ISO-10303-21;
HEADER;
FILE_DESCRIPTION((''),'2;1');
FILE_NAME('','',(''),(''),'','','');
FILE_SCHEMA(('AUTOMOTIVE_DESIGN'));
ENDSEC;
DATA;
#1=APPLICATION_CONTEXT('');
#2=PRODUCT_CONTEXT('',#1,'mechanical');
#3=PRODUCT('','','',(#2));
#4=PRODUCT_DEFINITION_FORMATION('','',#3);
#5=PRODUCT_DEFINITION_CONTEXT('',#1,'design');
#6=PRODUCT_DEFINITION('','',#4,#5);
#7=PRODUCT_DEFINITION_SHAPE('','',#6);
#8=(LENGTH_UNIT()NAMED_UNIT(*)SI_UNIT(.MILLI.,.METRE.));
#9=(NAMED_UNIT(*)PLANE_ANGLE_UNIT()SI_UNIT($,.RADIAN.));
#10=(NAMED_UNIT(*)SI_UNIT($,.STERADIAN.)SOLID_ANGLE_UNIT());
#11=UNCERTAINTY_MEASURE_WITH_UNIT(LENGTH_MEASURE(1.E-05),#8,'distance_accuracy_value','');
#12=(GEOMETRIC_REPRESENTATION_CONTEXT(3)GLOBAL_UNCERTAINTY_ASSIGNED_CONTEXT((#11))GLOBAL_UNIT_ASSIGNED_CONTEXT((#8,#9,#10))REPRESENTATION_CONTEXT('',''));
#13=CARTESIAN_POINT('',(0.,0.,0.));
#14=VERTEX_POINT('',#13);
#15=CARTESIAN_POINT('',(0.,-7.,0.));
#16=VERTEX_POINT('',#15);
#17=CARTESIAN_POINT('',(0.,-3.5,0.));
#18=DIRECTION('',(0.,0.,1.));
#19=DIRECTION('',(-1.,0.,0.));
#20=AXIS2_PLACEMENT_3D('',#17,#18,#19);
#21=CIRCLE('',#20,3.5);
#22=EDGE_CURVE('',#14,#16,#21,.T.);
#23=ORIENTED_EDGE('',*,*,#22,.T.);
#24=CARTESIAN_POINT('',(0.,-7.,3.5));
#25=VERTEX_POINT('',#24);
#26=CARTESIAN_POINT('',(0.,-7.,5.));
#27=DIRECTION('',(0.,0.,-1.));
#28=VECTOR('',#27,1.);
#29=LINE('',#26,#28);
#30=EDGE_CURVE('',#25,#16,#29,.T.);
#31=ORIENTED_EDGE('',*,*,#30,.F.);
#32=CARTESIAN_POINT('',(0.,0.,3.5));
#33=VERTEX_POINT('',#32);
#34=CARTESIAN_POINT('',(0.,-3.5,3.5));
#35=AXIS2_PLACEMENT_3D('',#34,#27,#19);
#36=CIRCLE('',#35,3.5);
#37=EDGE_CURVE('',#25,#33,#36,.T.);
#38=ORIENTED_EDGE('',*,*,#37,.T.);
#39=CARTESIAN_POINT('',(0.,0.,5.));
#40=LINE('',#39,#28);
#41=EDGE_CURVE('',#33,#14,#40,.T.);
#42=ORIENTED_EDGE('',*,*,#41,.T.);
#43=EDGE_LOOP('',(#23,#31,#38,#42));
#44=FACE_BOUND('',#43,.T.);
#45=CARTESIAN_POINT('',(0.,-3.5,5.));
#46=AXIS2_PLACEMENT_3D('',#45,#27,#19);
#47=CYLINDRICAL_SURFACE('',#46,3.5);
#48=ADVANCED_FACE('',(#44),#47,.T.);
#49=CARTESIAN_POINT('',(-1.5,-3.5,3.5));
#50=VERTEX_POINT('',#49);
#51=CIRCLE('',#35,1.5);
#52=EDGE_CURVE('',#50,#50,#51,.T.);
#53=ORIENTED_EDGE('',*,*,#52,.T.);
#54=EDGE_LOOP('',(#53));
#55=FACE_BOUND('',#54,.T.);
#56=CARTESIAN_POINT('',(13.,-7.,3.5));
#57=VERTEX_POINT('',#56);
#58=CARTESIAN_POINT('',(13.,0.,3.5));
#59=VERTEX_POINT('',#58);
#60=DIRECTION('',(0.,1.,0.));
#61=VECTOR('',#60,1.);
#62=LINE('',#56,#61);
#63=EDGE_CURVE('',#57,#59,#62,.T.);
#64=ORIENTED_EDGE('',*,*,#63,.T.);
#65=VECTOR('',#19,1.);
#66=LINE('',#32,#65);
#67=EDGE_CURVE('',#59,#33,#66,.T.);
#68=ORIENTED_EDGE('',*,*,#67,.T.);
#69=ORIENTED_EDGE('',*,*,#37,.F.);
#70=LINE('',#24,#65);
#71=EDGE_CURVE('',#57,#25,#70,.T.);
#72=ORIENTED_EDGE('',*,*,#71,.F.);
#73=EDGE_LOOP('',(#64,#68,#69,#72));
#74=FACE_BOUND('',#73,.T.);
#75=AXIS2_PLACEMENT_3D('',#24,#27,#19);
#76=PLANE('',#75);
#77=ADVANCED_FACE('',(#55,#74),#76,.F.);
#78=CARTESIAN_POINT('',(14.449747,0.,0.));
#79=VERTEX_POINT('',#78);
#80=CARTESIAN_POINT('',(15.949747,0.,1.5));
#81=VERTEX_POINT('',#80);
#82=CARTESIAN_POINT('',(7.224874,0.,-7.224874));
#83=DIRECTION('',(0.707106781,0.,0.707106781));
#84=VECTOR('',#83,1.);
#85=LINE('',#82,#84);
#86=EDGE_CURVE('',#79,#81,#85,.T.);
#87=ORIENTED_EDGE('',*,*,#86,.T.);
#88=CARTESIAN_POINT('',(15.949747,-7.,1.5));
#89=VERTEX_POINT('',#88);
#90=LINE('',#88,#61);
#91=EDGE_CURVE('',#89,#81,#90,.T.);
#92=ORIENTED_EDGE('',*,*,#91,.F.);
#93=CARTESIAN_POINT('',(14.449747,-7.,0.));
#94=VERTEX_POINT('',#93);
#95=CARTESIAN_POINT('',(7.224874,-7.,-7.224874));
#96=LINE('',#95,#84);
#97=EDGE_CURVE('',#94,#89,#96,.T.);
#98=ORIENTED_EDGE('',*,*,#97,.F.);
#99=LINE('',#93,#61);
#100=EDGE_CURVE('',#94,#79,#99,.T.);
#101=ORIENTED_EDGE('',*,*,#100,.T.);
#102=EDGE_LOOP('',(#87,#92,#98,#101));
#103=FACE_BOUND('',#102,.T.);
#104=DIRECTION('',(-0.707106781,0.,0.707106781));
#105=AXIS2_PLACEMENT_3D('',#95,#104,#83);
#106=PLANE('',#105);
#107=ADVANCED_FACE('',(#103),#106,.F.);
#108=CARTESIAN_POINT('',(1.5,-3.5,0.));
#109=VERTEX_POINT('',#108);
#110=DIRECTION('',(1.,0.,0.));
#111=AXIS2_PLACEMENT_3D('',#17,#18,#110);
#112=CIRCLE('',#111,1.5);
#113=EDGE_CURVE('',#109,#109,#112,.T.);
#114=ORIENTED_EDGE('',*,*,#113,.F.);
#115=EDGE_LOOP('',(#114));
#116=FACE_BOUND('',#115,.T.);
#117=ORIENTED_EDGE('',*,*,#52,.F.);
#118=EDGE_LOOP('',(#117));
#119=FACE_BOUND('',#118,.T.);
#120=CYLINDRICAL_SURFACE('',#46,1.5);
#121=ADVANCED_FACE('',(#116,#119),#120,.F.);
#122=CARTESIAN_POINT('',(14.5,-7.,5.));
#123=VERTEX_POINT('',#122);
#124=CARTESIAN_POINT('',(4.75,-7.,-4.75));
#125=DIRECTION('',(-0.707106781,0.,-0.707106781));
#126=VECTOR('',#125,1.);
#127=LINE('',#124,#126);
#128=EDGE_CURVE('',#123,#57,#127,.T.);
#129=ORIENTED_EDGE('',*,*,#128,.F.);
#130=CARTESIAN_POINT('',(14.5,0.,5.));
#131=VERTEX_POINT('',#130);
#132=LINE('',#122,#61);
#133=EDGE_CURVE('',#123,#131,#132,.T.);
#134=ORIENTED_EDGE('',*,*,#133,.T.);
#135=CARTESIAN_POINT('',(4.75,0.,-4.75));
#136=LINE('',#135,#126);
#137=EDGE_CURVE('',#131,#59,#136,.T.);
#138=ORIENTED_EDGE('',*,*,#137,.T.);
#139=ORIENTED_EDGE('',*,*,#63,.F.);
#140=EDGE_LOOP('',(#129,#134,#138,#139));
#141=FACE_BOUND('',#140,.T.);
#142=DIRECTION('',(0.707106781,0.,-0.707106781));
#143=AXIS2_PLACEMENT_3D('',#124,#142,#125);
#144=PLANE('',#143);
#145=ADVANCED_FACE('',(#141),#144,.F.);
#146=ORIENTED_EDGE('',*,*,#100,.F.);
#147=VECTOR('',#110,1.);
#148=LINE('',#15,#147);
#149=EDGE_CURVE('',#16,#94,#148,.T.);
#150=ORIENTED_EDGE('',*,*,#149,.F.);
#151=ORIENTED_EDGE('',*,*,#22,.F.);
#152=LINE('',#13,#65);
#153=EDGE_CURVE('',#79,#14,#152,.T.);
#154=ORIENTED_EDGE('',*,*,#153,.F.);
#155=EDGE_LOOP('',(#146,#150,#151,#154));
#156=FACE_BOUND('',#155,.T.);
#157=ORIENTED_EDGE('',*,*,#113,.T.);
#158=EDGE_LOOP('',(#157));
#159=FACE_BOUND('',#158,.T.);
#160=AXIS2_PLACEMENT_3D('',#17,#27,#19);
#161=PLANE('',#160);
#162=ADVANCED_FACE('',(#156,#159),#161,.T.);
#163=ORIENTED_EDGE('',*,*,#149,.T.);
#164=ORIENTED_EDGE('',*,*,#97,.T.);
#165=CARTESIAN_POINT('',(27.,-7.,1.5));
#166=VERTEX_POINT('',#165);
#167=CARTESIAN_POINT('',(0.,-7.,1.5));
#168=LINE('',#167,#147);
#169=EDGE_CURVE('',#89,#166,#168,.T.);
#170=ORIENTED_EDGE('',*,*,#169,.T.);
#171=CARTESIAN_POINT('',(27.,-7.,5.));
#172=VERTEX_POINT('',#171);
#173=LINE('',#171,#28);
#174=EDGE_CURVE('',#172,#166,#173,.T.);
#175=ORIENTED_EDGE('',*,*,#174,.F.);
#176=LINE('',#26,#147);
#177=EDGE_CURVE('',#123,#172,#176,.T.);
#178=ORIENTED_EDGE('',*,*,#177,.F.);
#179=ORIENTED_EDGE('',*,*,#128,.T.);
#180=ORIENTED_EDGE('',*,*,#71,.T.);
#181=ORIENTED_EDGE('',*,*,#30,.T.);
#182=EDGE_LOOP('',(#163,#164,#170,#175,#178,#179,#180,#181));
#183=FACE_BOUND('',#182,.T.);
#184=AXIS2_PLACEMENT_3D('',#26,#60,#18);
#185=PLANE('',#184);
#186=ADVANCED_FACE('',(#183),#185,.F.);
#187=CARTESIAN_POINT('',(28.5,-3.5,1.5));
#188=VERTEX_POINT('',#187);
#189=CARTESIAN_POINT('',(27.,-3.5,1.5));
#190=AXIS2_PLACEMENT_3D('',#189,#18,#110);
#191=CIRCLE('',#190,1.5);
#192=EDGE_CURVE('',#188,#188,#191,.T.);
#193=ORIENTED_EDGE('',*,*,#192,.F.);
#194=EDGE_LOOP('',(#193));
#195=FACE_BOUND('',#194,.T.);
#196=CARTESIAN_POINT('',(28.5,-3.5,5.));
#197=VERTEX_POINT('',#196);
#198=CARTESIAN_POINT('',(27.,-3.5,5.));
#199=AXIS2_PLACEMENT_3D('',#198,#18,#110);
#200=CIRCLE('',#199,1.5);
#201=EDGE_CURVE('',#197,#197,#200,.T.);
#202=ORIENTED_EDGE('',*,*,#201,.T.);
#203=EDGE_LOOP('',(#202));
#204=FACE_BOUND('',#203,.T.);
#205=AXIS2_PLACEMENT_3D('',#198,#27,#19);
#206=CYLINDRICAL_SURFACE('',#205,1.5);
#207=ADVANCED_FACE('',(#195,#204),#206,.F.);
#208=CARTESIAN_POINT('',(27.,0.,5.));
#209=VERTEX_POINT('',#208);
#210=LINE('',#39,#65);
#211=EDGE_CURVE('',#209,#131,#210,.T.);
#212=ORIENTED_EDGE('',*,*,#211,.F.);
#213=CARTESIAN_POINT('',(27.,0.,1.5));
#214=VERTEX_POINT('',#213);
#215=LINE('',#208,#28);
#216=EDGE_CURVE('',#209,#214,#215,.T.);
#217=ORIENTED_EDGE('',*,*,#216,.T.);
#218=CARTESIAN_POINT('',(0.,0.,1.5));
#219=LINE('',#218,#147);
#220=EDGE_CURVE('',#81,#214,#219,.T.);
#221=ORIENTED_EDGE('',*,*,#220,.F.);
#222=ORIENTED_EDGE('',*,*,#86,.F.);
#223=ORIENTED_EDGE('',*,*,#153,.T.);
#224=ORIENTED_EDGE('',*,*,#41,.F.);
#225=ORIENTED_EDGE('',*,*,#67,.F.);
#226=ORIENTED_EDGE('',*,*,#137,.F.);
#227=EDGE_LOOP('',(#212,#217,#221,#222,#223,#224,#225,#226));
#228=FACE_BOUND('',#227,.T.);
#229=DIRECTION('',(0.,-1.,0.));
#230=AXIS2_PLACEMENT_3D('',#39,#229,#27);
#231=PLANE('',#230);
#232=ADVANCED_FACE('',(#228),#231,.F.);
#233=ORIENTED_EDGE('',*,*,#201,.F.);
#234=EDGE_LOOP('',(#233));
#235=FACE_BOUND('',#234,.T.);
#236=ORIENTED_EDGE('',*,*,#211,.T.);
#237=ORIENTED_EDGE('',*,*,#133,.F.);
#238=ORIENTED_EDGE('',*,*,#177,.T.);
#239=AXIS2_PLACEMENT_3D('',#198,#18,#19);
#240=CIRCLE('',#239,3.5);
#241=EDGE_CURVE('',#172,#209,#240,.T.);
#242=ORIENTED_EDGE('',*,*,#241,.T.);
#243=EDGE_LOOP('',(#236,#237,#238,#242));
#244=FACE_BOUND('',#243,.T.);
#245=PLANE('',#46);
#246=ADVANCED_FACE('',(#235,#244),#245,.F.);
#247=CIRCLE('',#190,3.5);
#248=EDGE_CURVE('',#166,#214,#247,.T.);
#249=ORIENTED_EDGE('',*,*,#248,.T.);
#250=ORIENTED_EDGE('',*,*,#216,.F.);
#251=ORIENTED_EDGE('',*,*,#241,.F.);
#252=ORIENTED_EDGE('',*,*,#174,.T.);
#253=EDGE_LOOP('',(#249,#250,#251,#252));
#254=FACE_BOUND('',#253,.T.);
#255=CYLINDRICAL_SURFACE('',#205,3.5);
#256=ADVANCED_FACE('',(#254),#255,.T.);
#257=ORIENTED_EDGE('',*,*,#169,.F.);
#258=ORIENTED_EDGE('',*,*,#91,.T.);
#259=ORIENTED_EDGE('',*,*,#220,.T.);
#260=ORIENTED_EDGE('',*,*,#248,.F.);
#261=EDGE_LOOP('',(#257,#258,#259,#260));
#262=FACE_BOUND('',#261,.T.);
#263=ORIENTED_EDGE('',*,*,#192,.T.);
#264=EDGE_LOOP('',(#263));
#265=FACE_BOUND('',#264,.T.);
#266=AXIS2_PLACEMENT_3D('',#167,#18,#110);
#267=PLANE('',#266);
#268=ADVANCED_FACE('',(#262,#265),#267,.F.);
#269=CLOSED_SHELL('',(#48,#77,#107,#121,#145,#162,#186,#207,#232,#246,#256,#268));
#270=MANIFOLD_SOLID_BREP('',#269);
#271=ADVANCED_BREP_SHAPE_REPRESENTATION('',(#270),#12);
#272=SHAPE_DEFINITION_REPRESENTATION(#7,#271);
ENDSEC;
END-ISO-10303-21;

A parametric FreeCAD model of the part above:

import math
import FreeCAD as App
import Part
import Sketcher
Q = App.Units.Quantity

doc = App.newDocument("Part")
body = doc.addObject("PartDesign::Body", "Body")

# Sketch on XY plane
sketch1 = doc.addObject("Sketcher::SketchObject", "Sketch")
body.addObject(sketch1)
sketch1.AttachmentSupport = (doc.XY_Plane, [""])
sketch1.MapMode = "FlatFace"
sketch1.addGeometry([
    Part.LineSegment(App.Vector(27, 0, 0), App.Vector(0, 0, 0)),  # 0
    Part.ArcOfCircle(Part.Circle(App.Vector(0, -3.5, 0), App.Vector(0, 0, 1), 3.5), math.radians(90), math.radians(270)),  # 1
    Part.LineSegment(App.Vector(0, -7, 0), App.Vector(27, -7, 0)),  # 2
    Part.ArcOfCircle(Part.Circle(App.Vector(27, -3.5, 0), App.Vector(0, 0, 1), 3.5), math.radians(-90), math.radians(90)),  # 3
    Part.Circle(App.Vector(27, -3.5, 0), App.Vector(0, 0, 1), 1.5),  # 4
    Part.Circle(App.Vector(0, -3.5, 0), App.Vector(0, 0, 1), 1.5),  # 5
], False)
sketch1.addConstraint([
    Sketcher.Constraint("Tangent", 0, 2, 1, 1),
    Sketcher.Constraint("Tangent", 1, 2, 2, 1),
    Sketcher.Constraint("Tangent", 2, 2, 3, 1),
    Sketcher.Constraint("Tangent", 3, 2, 0, 1),
    Sketcher.Constraint("Horizontal", 0),
    Sketcher.Constraint("Horizontal", 2),
    Sketcher.Constraint("Coincident", 0, 2, -1, 1),
    Sketcher.Constraint("Coincident", 4, 3, 3, 3),
    Sketcher.Constraint("Coincident", 5, 3, 1, 3),
    Sketcher.Constraint("Equal", 4, 5),
    Sketcher.Constraint("Diameter", 4, 3.0),
    Sketcher.Constraint("Radius", 1, 3.5),
    Sketcher.Constraint("DistanceX", 0, 2, 0, 1, 27.0),
])
pad1 = doc.addObject("PartDesign::Pad", "Pad")
body.addObject(pad1)
pad1.Profile = sketch1
pad1.Length = 5

# Sketch on XZ plane
sketch2 = doc.addObject("Sketcher::SketchObject", "Sketch001")
body.addObject(sketch2)
sketch2.AttachmentSupport = (doc.XZ_Plane, [""])
sketch2.MapMode = "FlatFace"
sketch2.addGeometry([
    Part.LineSegment(App.Vector(14.5, 5, 0), App.Vector(13, 3.5, 0)),  # 0
    Part.LineSegment(App.Vector(13, 3.5, 0), App.Vector(-3.5, 3.5, 0)),  # 1
    Part.LineSegment(App.Vector(-3.5, 3.5, 0), App.Vector(-3.5, 5, 0)),  # 2
    Part.LineSegment(App.Vector(-3.5, 5, 0), App.Vector(14.5, 5, 0)),  # 3
    Part.LineSegment(App.Vector(15.9, 1.5, 0), App.Vector(30.5, 1.5, 0)),  # 4
    Part.LineSegment(App.Vector(30.5, 1.5, 0), App.Vector(30.5, 0, 0)),  # 5
    Part.LineSegment(App.Vector(30.5, 0, 0), App.Vector(14.4, 0, 0)),  # 6
    Part.LineSegment(App.Vector(14.4, 0, 0), App.Vector(15.9, 1.5, 0)),  # 7
], False)
sketch2.addConstraint([
    Sketcher.Constraint("Coincident", 0, 2, 1, 1),
    Sketcher.Constraint("Coincident", 1, 2, 2, 1),
    Sketcher.Constraint("Coincident", 2, 2, 3, 1),
    Sketcher.Constraint("Coincident", 3, 2, 0, 1),
    Sketcher.Constraint("Coincident", 4, 2, 5, 1),
    Sketcher.Constraint("Coincident", 5, 2, 6, 1),
    Sketcher.Constraint("Coincident", 6, 2, 7, 1),
    Sketcher.Constraint("Coincident", 7, 2, 4, 1),
    Sketcher.Constraint("Horizontal", 1),
    Sketcher.Constraint("Vertical", 2),
    Sketcher.Constraint("Horizontal", 3),
    Sketcher.Constraint("Horizontal", 4),
    Sketcher.Constraint("Vertical", 5),
    Sketcher.Constraint("Horizontal", 6),
    Sketcher.Constraint("PointOnObject", 5, 2, -1),
    Sketcher.Constraint("Parallel", 0, 7),
    Sketcher.Constraint("Equal", 2, 5),
    Sketcher.Constraint("DistanceX", 3, 1, 3, 2, 18.0),
    Sketcher.Constraint("Angle", 0, Q("-135 deg")),
    Sketcher.Constraint("DistanceX", 1, 2, 1, 1, 16.5),
    Sketcher.Constraint("DistanceX", -1, 1, 0, 2, 13.0),
    Sketcher.Constraint("DistanceY", -1, 1, 2, 2, 5.0),
    Sketcher.Constraint("DistanceX", 3, 2, 4, 2, 16.0),
    Sketcher.Constraint("DistanceX", 4, 1, 4, 2, 14.550253),
])
pocket1 = doc.addObject("PartDesign::Pocket", "Pocket")
body.addObject(pocket1)
pocket1.Profile = sketch2
pocket1.Type = "ThroughAll"
pocket1.Reversed = True

doc.recompute()
